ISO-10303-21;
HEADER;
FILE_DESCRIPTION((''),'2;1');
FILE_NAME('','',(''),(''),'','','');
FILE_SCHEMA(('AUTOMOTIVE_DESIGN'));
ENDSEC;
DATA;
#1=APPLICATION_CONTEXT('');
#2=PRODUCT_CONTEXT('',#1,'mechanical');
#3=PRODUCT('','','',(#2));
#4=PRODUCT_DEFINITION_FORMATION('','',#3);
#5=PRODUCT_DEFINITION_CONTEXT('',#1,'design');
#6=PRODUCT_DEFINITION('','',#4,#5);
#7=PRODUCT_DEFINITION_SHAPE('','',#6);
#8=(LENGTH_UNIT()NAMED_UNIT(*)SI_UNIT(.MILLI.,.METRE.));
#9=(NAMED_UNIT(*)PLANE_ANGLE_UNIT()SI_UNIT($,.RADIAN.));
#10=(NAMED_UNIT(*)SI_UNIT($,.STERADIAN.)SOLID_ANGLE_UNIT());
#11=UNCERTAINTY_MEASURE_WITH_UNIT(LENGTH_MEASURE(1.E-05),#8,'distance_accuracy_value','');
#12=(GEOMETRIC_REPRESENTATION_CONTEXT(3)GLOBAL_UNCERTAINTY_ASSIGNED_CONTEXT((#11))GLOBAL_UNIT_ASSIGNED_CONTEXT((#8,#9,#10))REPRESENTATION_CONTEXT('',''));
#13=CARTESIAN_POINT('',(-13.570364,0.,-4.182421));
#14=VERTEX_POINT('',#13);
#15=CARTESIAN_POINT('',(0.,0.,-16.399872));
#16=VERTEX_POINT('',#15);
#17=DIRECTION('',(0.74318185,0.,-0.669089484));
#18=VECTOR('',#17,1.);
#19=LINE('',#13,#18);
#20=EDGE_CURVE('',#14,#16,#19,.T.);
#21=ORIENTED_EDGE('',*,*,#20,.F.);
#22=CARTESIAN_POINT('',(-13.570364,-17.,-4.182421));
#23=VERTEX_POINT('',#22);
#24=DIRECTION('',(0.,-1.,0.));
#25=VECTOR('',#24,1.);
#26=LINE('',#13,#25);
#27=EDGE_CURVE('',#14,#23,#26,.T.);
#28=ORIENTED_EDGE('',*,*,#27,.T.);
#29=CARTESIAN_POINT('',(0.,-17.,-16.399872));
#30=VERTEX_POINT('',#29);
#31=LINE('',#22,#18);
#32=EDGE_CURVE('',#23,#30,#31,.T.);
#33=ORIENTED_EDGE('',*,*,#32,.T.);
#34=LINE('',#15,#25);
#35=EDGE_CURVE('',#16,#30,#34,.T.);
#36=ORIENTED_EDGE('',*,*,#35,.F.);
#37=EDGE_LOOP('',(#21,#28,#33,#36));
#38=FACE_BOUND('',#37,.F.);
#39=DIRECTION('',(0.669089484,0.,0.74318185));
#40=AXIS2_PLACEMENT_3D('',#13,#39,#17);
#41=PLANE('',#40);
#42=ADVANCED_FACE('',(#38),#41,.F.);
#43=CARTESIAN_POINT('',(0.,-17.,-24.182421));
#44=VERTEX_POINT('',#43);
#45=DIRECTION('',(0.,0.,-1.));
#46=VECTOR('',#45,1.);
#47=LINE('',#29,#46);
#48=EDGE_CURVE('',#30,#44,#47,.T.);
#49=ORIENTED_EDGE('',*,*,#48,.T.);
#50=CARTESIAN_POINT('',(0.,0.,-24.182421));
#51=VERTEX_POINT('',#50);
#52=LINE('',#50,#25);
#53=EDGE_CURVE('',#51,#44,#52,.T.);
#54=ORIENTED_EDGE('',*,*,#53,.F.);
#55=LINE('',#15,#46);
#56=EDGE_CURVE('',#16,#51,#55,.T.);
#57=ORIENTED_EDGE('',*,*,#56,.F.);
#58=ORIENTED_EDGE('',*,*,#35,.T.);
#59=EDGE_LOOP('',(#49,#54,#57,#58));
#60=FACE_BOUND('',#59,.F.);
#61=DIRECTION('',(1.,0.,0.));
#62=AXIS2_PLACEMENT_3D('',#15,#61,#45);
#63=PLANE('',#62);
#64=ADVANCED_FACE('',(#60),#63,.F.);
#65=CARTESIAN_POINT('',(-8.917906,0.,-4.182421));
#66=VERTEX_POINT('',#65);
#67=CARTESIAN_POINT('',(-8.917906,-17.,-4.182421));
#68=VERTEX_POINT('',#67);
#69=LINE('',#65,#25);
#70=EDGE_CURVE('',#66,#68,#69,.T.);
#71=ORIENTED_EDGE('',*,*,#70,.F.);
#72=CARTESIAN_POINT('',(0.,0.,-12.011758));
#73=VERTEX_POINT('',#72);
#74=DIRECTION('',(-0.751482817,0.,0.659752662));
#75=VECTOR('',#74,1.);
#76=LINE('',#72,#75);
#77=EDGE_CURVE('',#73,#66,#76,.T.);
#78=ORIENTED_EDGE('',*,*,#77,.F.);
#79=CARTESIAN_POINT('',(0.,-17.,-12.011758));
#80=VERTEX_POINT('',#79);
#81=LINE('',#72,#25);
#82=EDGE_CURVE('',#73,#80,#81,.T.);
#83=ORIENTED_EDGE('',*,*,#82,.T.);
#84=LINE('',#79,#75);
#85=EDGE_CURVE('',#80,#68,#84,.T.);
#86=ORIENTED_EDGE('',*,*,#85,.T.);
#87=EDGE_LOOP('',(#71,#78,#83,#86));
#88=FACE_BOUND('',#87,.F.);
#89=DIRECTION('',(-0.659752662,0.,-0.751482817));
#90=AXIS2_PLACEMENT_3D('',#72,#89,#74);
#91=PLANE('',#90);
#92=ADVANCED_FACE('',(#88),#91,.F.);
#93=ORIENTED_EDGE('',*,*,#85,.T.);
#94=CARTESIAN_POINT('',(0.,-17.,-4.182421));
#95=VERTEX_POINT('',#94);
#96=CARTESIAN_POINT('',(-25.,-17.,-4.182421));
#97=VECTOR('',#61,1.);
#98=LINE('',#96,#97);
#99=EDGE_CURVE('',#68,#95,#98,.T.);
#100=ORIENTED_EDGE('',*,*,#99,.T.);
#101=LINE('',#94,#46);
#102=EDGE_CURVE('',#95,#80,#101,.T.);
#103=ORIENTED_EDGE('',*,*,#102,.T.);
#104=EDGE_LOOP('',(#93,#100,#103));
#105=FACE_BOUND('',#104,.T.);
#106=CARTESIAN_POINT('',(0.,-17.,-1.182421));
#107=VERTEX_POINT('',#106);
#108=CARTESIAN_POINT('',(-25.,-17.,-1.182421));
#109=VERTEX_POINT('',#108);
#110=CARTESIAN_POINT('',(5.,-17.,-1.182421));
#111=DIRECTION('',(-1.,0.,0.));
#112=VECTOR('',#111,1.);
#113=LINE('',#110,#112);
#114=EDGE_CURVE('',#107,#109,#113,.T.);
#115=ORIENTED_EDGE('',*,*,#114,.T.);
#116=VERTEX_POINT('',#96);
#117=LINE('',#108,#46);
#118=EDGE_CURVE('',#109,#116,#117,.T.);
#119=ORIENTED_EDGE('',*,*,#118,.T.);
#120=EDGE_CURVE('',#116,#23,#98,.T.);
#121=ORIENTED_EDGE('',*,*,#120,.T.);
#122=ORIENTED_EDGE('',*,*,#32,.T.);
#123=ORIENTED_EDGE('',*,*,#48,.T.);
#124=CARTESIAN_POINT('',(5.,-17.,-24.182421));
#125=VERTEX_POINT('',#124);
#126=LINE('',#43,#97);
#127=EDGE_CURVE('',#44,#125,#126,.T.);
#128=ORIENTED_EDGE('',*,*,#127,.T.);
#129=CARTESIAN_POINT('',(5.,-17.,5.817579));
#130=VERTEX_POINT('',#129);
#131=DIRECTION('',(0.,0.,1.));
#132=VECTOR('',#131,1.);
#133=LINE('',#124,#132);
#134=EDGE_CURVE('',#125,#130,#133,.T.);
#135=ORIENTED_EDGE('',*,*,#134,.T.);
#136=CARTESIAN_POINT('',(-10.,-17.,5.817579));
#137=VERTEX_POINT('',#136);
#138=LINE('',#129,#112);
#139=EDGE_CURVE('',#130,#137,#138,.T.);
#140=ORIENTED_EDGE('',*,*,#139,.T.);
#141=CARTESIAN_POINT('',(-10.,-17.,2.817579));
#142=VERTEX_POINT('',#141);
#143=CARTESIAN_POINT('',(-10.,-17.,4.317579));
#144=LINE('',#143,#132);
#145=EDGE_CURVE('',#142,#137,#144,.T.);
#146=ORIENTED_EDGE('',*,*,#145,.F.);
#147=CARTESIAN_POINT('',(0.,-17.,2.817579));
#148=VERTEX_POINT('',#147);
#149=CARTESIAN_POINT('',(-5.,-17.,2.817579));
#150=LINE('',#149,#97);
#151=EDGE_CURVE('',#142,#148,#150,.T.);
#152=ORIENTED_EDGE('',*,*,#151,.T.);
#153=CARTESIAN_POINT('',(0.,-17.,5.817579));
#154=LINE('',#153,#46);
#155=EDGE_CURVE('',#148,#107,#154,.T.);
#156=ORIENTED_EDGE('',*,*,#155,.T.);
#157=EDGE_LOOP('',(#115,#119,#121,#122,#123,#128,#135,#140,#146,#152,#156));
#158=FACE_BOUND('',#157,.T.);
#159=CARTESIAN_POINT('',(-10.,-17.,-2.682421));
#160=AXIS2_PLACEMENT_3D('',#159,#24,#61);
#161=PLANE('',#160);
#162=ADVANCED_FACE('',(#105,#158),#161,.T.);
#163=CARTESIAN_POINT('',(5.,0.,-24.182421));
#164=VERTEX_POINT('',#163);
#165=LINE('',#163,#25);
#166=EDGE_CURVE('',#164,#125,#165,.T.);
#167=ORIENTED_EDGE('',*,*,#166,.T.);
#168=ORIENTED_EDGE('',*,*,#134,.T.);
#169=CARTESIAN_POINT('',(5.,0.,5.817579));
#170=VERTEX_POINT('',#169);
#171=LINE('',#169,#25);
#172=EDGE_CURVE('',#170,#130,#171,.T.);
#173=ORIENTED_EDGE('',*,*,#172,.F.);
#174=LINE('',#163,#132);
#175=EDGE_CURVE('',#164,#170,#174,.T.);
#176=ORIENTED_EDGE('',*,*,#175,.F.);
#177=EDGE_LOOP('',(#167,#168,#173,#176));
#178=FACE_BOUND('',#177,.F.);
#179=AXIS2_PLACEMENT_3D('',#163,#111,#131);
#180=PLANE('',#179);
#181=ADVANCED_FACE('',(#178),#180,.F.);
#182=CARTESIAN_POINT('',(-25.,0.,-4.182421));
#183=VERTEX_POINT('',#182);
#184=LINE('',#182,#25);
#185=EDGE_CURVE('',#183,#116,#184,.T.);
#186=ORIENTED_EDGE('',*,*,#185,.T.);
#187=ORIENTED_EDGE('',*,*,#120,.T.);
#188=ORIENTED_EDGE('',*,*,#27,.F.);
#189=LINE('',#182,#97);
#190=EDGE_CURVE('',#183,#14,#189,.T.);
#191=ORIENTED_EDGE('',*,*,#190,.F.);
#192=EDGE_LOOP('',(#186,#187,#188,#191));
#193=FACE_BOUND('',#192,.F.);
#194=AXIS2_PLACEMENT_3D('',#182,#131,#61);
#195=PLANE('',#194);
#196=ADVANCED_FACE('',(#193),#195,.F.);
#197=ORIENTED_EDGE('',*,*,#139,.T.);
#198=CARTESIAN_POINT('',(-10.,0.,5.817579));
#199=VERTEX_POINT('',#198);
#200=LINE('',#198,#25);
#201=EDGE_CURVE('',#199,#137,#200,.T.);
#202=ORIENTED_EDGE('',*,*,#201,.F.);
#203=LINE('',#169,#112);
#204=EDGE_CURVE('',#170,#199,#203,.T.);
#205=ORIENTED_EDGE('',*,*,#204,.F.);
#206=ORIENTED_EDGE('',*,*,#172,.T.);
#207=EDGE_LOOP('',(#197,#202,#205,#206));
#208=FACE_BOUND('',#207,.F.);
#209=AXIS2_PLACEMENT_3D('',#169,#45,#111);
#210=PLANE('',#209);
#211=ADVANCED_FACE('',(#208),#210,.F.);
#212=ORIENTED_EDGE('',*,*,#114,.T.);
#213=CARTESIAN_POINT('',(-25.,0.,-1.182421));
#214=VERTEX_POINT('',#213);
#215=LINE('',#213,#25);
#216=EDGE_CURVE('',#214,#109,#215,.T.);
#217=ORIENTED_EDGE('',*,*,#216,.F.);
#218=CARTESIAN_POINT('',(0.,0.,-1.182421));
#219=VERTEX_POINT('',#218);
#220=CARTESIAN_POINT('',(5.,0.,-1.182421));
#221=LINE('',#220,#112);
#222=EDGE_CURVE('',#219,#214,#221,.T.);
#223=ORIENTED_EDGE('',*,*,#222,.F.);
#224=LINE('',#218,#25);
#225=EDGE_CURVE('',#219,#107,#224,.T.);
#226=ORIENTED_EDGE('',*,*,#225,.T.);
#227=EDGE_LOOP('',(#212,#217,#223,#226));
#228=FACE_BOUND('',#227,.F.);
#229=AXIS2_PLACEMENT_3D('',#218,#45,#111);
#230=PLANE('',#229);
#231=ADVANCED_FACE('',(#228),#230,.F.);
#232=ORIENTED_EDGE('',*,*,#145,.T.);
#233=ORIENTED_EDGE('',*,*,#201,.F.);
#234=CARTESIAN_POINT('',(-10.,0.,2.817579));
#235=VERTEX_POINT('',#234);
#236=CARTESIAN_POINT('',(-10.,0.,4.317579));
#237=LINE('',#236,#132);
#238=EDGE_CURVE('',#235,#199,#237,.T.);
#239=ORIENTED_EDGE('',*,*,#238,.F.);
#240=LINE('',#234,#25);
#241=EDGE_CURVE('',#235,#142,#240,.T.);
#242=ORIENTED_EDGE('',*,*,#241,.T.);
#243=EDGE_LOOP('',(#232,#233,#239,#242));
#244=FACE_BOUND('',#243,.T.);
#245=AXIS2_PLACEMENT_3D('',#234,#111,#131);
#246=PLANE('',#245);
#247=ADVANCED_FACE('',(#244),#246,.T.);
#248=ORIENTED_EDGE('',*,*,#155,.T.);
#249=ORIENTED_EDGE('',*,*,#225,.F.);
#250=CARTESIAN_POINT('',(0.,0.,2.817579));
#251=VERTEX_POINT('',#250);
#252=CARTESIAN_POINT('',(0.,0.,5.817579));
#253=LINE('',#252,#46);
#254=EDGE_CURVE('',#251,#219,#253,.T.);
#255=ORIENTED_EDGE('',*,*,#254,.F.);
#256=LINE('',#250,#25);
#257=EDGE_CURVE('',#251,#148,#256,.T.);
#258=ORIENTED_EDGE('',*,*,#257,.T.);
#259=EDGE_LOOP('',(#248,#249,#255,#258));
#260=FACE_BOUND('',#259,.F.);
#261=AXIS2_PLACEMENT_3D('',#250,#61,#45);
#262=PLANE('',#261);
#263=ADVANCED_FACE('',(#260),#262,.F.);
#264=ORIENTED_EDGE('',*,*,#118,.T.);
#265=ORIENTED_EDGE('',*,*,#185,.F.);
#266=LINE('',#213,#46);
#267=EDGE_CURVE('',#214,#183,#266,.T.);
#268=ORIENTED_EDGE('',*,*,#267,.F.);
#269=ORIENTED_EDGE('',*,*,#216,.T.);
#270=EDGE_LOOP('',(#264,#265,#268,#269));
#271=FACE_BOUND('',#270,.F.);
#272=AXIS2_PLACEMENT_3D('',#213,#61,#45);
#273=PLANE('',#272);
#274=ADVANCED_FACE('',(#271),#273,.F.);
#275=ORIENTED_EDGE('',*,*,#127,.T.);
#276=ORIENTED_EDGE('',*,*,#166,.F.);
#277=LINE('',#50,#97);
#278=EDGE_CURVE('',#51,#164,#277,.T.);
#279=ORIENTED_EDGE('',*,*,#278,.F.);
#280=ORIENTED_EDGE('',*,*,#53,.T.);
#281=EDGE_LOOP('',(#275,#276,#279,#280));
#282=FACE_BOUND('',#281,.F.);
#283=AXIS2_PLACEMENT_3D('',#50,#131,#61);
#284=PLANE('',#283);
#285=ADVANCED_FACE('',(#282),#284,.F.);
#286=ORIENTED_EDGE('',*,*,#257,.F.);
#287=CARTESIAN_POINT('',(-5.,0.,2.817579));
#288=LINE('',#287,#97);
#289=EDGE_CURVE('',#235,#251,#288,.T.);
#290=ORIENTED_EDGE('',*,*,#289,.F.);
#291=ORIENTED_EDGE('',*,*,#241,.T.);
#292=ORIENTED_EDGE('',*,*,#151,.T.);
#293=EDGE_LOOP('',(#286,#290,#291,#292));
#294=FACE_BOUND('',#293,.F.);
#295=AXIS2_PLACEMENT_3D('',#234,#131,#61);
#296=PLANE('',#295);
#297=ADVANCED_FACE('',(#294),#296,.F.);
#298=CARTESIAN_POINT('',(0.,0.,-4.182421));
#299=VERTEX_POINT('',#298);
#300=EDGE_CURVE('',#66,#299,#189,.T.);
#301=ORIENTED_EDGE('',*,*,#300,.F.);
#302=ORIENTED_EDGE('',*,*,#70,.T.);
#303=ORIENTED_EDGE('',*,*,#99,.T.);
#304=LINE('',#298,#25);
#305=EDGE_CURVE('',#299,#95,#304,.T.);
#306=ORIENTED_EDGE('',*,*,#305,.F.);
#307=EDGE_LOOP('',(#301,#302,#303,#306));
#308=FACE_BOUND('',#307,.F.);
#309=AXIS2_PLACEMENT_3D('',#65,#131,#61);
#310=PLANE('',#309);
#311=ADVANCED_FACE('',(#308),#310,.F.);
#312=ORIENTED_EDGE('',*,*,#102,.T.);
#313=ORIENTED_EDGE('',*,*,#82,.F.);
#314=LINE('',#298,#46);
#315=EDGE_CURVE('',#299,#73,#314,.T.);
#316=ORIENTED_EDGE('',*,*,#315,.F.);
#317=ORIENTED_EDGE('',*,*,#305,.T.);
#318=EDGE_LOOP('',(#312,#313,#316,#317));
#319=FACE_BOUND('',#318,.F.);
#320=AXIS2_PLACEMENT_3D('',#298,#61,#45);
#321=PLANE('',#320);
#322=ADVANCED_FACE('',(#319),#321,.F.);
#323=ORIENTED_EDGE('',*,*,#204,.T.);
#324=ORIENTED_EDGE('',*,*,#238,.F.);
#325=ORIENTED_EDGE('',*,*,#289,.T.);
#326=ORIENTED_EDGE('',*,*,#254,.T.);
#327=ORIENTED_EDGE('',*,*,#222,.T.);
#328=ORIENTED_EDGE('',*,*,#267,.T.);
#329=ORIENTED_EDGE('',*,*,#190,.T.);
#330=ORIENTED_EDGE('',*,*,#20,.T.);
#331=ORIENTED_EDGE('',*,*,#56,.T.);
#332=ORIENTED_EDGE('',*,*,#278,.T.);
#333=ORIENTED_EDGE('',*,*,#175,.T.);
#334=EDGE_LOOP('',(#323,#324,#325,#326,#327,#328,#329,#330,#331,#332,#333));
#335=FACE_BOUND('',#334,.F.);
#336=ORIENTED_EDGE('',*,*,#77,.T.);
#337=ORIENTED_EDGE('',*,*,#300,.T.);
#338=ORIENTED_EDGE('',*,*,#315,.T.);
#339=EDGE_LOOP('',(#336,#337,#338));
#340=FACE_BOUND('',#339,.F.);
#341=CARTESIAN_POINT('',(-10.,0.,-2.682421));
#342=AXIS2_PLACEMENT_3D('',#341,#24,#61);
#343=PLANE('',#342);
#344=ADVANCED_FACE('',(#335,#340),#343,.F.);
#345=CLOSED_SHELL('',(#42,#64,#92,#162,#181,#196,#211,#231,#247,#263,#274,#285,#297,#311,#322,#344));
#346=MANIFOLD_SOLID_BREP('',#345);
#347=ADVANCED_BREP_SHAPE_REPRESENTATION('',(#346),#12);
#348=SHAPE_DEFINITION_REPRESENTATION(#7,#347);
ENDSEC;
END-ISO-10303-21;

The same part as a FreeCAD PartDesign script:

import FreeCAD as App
import Part
import Sketcher
from FreeCAD import Vector


def add_polygon(sketch, points):
    """Adds a closed chain of lines whose ends are joined by coincident constraints."""
    first, n = sketch.GeometryCount, len(points)
    for a, b in zip(points, points[1:] + points[:1]):
        sketch.addGeometry(Part.LineSegment(App.Vector(*a, 0), App.Vector(*b, 0)), False)
    for i in range(n):
        sketch.addConstraint(Sketcher.Constraint("Coincident", first + i, 2, first + (i + 1) % n, 1))

doc = App.newDocument("Part")
body = doc.addObject("PartDesign::Body", "Body")

# Sketch on XZ plane
sketch1 = body.newObject("Sketcher::SketchObject", "Sketch")
sketch1.AttachmentSupport = (doc.getObject("XZ_Plane"), [""])
sketch1.MapMode = "FlatFace"
add_polygon(sketch1, [(0, -1.2), (-25, -1.2), (-25, -4.2), (-13.6, -4.2), (0, -16.4), (0, -24.2), (5, -24.2), (5, 5.8), (-10, 5.8), (-10, 2.8), (0, 2.8)])  # lines 0-10
add_polygon(sketch1, [(0, -12), (-8.9, -4.2), (0, -4.2)])  # lines 11-13
sketch1.addConstraint(Sketcher.Constraint("Horizontal", 0))
sketch1.addConstraint(Sketcher.Constraint("Vertical", 1))
sketch1.addConstraint(Sketcher.Constraint("Horizontal", 2))
sketch1.addConstraint(Sketcher.Constraint("Vertical", 4))
sketch1.addConstraint(Sketcher.Constraint("Horizontal", 5))
sketch1.addConstraint(Sketcher.Constraint("Vertical", 6))
sketch1.addConstraint(Sketcher.Constraint("Horizontal", 7))
sketch1.addConstraint(Sketcher.Constraint("Vertical", 8))
sketch1.addConstraint(Sketcher.Constraint("Horizontal", 9))
sketch1.addConstraint(Sketcher.Constraint("Vertical", 10))
sketch1.addConstraint(Sketcher.Constraint("Horizontal", 12))
sketch1.addConstraint(Sketcher.Constraint("Vertical", 13))
sketch1.addConstraint(Sketcher.Constraint("PointOnObject", 3, 2, -2))
sketch1.addConstraint(Sketcher.Constraint("PointOnObject", 9, 2, -2))
sketch1.addConstraint(Sketcher.Constraint("PointOnObject", 12, 2, -2))
sketch1.addConstraint(Sketcher.Constraint("Horizontal", 2, 2, 11, 2))
sketch1.addConstraint(Sketcher.Constraint("Equal", 1, 8))
sketch1.addConstraint(Sketcher.Constraint("DistanceX", 0, 2, 0, 1, 25.0))
sketch1.addConstraint(Sketcher.Constraint("DistanceX", 5, 1, 5, 2, 5.0))
sketch1.addConstraint(Sketcher.Constraint("DistanceX", 7, 2, 7, 1, 15.0))
sketch1.addConstraint(Sketcher.Constraint("DistanceY", 1, 2, 1, 1, 3.0))
sketch1.addConstraint(Sketcher.Constraint("DistanceY", 6, 1, 6, 2, 30.0))
sketch1.addConstraint(Sketcher.Constraint("DistanceY", 10, 2, 10, 1, 4.0))
sketch1.addConstraint(Sketcher.Constraint("DistanceY", 4, 2, 4, 1, 7.782549))
sketch1.addConstraint(Sketcher.Constraint("Distance", 11, 11.867079))
sketch1.addConstraint(Sketcher.Constraint("DistanceX", 2, 1, 2, 2, 11.429636))
sketch1.addConstraint(Sketcher.Constraint("DistanceX", 12, 1, 12, 2, 8.917906))
sketch1.addConstraint(Sketcher.Constraint("DistanceY", 0, 2, -1, 1, 1.182421))
pad1 = body.newObject("PartDesign::Pad", "Pad")
pad1.Profile = sketch1
pad1.Length = 17

doc.recompute()
